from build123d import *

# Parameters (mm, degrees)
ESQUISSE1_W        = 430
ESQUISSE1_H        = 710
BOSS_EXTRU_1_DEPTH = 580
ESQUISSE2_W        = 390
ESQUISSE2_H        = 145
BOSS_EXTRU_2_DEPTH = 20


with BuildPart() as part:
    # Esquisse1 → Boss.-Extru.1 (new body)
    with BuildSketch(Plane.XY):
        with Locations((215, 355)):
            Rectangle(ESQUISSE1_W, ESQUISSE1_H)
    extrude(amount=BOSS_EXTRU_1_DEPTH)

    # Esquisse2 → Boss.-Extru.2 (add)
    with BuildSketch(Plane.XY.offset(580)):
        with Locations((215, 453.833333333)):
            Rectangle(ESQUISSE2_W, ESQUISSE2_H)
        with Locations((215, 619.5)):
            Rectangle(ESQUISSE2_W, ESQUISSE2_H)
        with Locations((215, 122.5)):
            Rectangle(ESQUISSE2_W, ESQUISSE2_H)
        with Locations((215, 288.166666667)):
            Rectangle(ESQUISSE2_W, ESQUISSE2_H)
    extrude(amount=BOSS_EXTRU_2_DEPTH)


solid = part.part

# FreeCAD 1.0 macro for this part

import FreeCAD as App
import Part
import Sketcher

V = App.Vector


def add_polygon(sketch, points):
    """Adds a closed chain of lines whose ends are joined by coincident constraints."""
    first, n = sketch.GeometryCount, len(points)
    for a, b in zip(points, points[1:] + points[:1]):
        sketch.addGeometry(Part.LineSegment(App.Vector(*a, 0), App.Vector(*b, 0)), False)
    for i in range(n):
        sketch.addConstraint(Sketcher.Constraint("Coincident", first + i, 2, first + (i + 1) % n, 1))

doc = App.newDocument("Part")
body = doc.addObject("PartDesign::Body", "Body")

sketch1 = doc.addObject("Sketcher::SketchObject", "Sketch")
body.addObject(sketch1)
sketch1.AttachmentSupport = (doc.XY_Plane, [""])
sketch1.MapMode = "FlatFace"
add_polygon(sketch1, [(0, 710), (0, 0), (430, 0), (430, 710)])
sketch1.addConstraint(Sketcher.Constraint("Vertical", 0))
sketch1.addConstraint(Sketcher.Constraint("Horizontal", 1))
sketch1.addConstraint(Sketcher.Constraint("Vertical", 2))
sketch1.addConstraint(Sketcher.Constraint("Horizontal", 3))
sketch1.addConstraint(Sketcher.Constraint("Coincident", 0, 2, -1, 1))
sketch1.addConstraint(Sketcher.Constraint("DistanceX", 1, 1, 1, 2, 430.0))
sketch1.addConstraint(Sketcher.Constraint("DistanceY", 0, 2, 0, 1, 710.0))
pad1 = doc.addObject("PartDesign::Pad", "Pad")
body.addObject(pad1)
pad1.Profile = sketch1
pad1.Length = 580

sketch2 = doc.addObject("Sketcher::SketchObject", "Sketch001")
body.addObject(sketch2)
sketch2.AttachmentSupport = (doc.XY_Plane, [""])
sketch2.MapMode = "FlatFace"
sketch2.AttachmentOffset = App.Placement(V(0, 0, 580), App.Rotation())
add_polygon(sketch2, [(20, 526), (20, 381), (410, 381), (410, 526)])
add_polygon(sketch2, [(20, 692), (20, 547), (410, 547), (410, 692)])
add_polygon(sketch2, [(20, 195), (20, 50), (410, 50), (410, 195)])
add_polygon(sketch2, [(20, 361), (20, 216), (410, 216), (410, 361)])
sketch2.addConstraint(Sketcher.Constraint("Vertical", 0))
sketch2.addConstraint(Sketcher.Constraint("Horizontal", 1))
sketch2.addConstraint(Sketcher.Constraint("Vertical", 2))
sketch2.addConstraint(Sketcher.Constraint("Horizontal", 3))
sketch2.addConstraint(Sketcher.Constraint("Vertical", 4))
sketch2.addConstraint(Sketcher.Constraint("Horizontal", 5))
sketch2.addConstraint(Sketcher.Constraint("Vertical", 6))
sketch2.addConstraint(Sketcher.Constraint("Horizontal", 7))
sketch2.addConstraint(Sketcher.Constraint("Vertical", 8))
sketch2.addConstraint(Sketcher.Constraint("Horizontal", 9))
sketch2.addConstraint(Sketcher.Constraint("Vertical", 10))
sketch2.addConstraint(Sketcher.Constraint("Horizontal", 11))
sketch2.addConstraint(Sketcher.Constraint("Vertical", 12))
sketch2.addConstraint(Sketcher.Constraint("Horizontal", 13))
sketch2.addConstraint(Sketcher.Constraint("Vertical", 14))
sketch2.addConstraint(Sketcher.Constraint("Horizontal", 15))
sketch2.addConstraint(Sketcher.Constraint("Vertical", 3, 2, 4, 2))
sketch2.addConstraint(Sketcher.Constraint("Vertical", 2, 2, 5, 2))
sketch2.addConstraint(Sketcher.Constraint("Vertical", 7, 2, 8, 2))
sketch2.addConstraint(Sketcher.Constraint("Vertical", 6, 2, 9, 2))
sketch2.addConstraint(Sketcher.Constraint("Vertical", 11, 2, 12, 2))
sketch2.addConstraint(Sketcher.Constraint("Vertical", 10, 2, 13, 2))
sketch2.addConstraint(Sketcher.Constraint("Equal", 2, 4))
sketch2.addConstraint(Sketcher.Constraint("Equal", 6, 8))
sketch2.addConstraint(Sketcher.Constraint("Equal", 10, 12))
sketch2.addConstraint(Sketcher.Constraint("DistanceX", 1, 1, 1, 2, 390.0))
sketch2.addConstraint(Sketcher.Constraint("DistanceY", 0, 2, 0, 1, 145.0))
sketch2.addConstraint(Sketcher.Constraint("DistanceX", -1, 1, 0, 2, 20.0))
sketch2.addConstraint(Sketcher.Constraint("DistanceY", -1, 1, 4, 2, 547.0))
sketch2.addConstraint(Sketcher.Constraint("DistanceY", -1, 1, 8, 2, 50.0))
sketch2.addConstraint(Sketcher.Constraint("DistanceY", -1, 1, 0, 2, 381.333333))
sketch2.addConstraint(Sketcher.Constraint("DistanceY", -1, 1, 12, 2, 215.666667))
pad2 = doc.addObject("PartDesign::Pad", "Pad001")
body.addObject(pad2)
pad2.Profile = sketch2
pad2.Length = 20

doc.recompute()
